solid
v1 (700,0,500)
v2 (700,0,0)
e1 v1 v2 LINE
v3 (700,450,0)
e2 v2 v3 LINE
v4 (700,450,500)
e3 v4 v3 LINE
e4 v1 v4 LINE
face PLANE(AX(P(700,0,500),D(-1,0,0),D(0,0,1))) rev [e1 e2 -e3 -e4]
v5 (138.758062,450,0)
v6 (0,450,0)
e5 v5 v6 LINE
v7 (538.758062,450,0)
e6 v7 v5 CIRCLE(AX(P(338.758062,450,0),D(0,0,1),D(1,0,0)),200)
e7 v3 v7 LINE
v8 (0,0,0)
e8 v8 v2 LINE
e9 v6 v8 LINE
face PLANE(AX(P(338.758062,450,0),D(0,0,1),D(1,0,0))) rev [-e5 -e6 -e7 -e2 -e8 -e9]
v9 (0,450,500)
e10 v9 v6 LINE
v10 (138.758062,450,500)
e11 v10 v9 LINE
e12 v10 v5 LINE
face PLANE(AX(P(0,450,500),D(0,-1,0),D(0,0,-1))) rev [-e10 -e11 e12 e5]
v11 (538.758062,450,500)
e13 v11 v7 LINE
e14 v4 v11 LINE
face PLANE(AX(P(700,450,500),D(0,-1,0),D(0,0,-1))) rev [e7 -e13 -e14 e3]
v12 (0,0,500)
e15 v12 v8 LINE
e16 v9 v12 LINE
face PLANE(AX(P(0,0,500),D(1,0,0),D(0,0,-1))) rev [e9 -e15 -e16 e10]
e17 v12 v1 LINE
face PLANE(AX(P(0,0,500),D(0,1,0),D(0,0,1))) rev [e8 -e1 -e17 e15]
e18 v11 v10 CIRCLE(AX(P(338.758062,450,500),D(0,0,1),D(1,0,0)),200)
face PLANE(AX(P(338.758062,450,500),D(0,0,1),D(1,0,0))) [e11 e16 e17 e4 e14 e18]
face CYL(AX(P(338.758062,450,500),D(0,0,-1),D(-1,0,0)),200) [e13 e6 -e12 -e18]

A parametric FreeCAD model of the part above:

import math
import FreeCAD as App
import Part
import Sketcher
from FreeCAD import Vector

doc = App.newDocument("Part")
params = doc.addObject("Spreadsheet::Sheet", "Params")
for row, (alias, value) in enumerate([
    ("sketch1_radius", "200 mm"),
    ("sketch1_width", "700 mm"),
    ("sketch1_height", "450 mm"),
    ("pad1_length", "500 mm"),
], start=1):
    params.set(f"A{row}", alias)
    params.set(f"B{row}", "=" + value)
    params.setAlias(f"B{row}", alias)

body = doc.addObject("PartDesign::Body", "Body")

# Sketch on XY plane
sketch1 = body.newObject("Sketcher::SketchObject", "Sketch")
sketch1.AttachmentSupport = (doc.getObject("XY_Plane"), [""])
sketch1.MapMode = "FlatFace"
sketch1.addGeometry(Part.LineSegment(Vector(0, 0, 0), Vector(700, 0, 0)), False)
sketch1.addGeometry(Part.LineSegment(Vector(700, 0, 0), Vector(700, 450, 0)), False)
sketch1.addGeometry(Part.LineSegment(Vector(700, 450, 0), Vector(539, 450, 0)), False)
sketch1.addGeometry(Part.ArcOfCircle(Part.Circle(Vector(339, 450, 0), Vector(0, 0, 1), 200), math.radians(0), math.radians(180)), False)
sketch1.addGeometry(Part.LineSegment(Vector(139, 450, 0), Vector(0, 450, 0)), False)
sketch1.addGeometry(Part.LineSegment(Vector(0, 450, 0), Vector(0, 0, 0)), False)
sketch1.addConstraint(Sketcher.Constraint("Coincident", 0, 2, 1, 1))
sketch1.addConstraint(Sketcher.Constraint("Coincident", 1, 2, 2, 1))
sketch1.addConstraint(Sketcher.Constraint("Coincident", 2, 2, 3, 1))
sketch1.addConstraint(Sketcher.Constraint("Coincident", 3, 2, 4, 1))
sketch1.addConstraint(Sketcher.Constraint("Coincident", 4, 2, 5, 1))
sketch1.addConstraint(Sketcher.Constraint("Coincident", 5, 2, 0, 1))
sketch1.addConstraint(Sketcher.Constraint("Horizontal", 0))
sketch1.addConstraint(Sketcher.Constraint("Vertical", 1))
sketch1.addConstraint(Sketcher.Constraint("Horizontal", 2))
sketch1.addConstraint(Sketcher.Constraint("Horizontal", 4))
sketch1.addConstraint(Sketcher.Constraint("Vertical", 5))
sketch1.addConstraint(Sketcher.Constraint("Coincident", 5, 2, -1, 1))
sketch1.addConstraint(Sketcher.Constraint("Horizontal", 3, 3, 1, 2))
sketch1.addConstraint(Sketcher.Constraint("Horizontal", 2, 2, 3, 2))
sketch1.addConstraint(Sketcher.Constraint("Radius", 3, 200.0))
sketch1.addConstraint(Sketcher.Constraint("DistanceX", 0, 1, 0, 2, 700.0))
sketch1.addConstraint(Sketcher.Constraint("DistanceY", 1, 1, 1, 2, 450.0))
sketch1.addConstraint(Sketcher.Constraint("DistanceX", 2, 2, 2, 1, 161.241938))
sketch1.setExpression("Constraints[14]", "Params.sketch1_radius")
sketch1.setExpression("Constraints[15]", "Params.sketch1_width")
sketch1.setExpression("Constraints[16]", "Params.sketch1_height")
pad1 = body.newObject("PartDesign::Pad", "Pad")
pad1.Profile = sketch1
pad1.setExpression("Length", "Params.pad1_length")

doc.recompute()
